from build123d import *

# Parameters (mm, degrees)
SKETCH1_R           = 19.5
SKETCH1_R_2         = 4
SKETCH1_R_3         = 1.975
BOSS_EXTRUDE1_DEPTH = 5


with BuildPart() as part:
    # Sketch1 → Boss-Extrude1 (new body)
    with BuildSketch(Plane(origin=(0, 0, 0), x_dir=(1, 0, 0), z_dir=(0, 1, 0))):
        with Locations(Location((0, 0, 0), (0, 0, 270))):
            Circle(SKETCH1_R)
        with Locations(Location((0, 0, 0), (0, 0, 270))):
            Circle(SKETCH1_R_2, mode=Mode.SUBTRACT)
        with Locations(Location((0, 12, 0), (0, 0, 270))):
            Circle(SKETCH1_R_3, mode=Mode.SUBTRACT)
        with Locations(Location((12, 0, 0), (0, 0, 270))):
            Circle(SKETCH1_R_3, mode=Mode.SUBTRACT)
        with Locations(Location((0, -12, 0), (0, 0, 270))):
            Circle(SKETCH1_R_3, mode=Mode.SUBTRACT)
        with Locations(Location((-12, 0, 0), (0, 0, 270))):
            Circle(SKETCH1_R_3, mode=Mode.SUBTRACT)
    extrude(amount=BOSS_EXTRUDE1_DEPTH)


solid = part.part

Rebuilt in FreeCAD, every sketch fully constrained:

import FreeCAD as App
import Part
import Sketcher

doc = App.newDocument("Part")
params = doc.addObject("Spreadsheet::Sheet", "Params")
for row, (alias, value) in enumerate([
    ("sketch1_diameter", "39 mm"),
    ("sketch1_diameter2", "8 mm"),
    ("sketch1_diameter3", "3.95 mm"),
    ("pad1_length", "5 mm"),
], start=1):
    params.set(f"A{row}", alias)
    params.set(f"B{row}", "=" + value)
    params.setAlias(f"B{row}", alias)

body = doc.addObject("PartDesign::Body", "Body")

# Sketch on XZ plane
sketch1 = doc.addObject("Sketcher::SketchObject", "Sketch")
body.addObject(sketch1)
sketch1.AttachmentSupport = (doc.XZ_Plane, [""])
sketch1.MapMode = "FlatFace"
sketch1.addGeometry([
    Part.Circle(App.Vector(0, 0, 0), App.Vector(0, 0, 1), 19.5),  # 0
    Part.Circle(App.Vector(0, -12, 0), App.Vector(0, 0, 1), 2),  # 1
    Part.Circle(App.Vector(0, 0, 0), App.Vector(0, 0, 1), 4),  # 2
    Part.Circle(App.Vector(-12, 0, 0), App.Vector(0, 0, 1), 2),  # 3
    Part.Circle(App.Vector(12, 0, 0), App.Vector(0, 0, 1), 2),  # 4
    Part.Circle(App.Vector(0, 12, 0), App.Vector(0, 0, 1), 2),  # 5
], False)
sketch1.addConstraint([
    Sketcher.Constraint("Coincident", 0, 3, -1, 1),
    Sketcher.Constraint("Coincident", 2, 3, -1, 1),
    Sketcher.Constraint("Equal", 1, 3),
    Sketcher.Constraint("Equal", 3, 4),
    Sketcher.Constraint("Equal", 4, 5),
    Sketcher.Constraint("Symmetric", 3, 3, 4, 3, -1, 1),
    Sketcher.Constraint("Symmetric", 1, 3, 5, 3, -1, 1),
    Sketcher.Constraint("PointOnObject", 1, 3, -2),
    Sketcher.Constraint("PointOnObject", 3, 3, -1),
    Sketcher.Constraint("Diameter", 0, 39.0),
    Sketcher.Constraint("Diameter", 2, 8.0),
    Sketcher.Constraint("Diameter", 1, 3.95),
    Sketcher.Constraint("DistanceY", 1, 3, -1, 1, 12.0),
    Sketcher.Constraint("DistanceX", 3, 3, -1, 1, 12.0),
])
sketch1.setExpression("Constraints[9]", "Params.sketch1_diameter")
sketch1.setExpression("Constraints[10]", "Params.sketch1_diameter2")
sketch1.setExpression("Constraints[11]", "Params.sketch1_diameter3")
pad1 = doc.addObject("PartDesign::Pad", "Pad")
body.addObject(pad1)
pad1.Profile = sketch1
pad1.setExpression("Length", "Params.pad1_length")
pad1.Reversed = True

doc.recompute()
